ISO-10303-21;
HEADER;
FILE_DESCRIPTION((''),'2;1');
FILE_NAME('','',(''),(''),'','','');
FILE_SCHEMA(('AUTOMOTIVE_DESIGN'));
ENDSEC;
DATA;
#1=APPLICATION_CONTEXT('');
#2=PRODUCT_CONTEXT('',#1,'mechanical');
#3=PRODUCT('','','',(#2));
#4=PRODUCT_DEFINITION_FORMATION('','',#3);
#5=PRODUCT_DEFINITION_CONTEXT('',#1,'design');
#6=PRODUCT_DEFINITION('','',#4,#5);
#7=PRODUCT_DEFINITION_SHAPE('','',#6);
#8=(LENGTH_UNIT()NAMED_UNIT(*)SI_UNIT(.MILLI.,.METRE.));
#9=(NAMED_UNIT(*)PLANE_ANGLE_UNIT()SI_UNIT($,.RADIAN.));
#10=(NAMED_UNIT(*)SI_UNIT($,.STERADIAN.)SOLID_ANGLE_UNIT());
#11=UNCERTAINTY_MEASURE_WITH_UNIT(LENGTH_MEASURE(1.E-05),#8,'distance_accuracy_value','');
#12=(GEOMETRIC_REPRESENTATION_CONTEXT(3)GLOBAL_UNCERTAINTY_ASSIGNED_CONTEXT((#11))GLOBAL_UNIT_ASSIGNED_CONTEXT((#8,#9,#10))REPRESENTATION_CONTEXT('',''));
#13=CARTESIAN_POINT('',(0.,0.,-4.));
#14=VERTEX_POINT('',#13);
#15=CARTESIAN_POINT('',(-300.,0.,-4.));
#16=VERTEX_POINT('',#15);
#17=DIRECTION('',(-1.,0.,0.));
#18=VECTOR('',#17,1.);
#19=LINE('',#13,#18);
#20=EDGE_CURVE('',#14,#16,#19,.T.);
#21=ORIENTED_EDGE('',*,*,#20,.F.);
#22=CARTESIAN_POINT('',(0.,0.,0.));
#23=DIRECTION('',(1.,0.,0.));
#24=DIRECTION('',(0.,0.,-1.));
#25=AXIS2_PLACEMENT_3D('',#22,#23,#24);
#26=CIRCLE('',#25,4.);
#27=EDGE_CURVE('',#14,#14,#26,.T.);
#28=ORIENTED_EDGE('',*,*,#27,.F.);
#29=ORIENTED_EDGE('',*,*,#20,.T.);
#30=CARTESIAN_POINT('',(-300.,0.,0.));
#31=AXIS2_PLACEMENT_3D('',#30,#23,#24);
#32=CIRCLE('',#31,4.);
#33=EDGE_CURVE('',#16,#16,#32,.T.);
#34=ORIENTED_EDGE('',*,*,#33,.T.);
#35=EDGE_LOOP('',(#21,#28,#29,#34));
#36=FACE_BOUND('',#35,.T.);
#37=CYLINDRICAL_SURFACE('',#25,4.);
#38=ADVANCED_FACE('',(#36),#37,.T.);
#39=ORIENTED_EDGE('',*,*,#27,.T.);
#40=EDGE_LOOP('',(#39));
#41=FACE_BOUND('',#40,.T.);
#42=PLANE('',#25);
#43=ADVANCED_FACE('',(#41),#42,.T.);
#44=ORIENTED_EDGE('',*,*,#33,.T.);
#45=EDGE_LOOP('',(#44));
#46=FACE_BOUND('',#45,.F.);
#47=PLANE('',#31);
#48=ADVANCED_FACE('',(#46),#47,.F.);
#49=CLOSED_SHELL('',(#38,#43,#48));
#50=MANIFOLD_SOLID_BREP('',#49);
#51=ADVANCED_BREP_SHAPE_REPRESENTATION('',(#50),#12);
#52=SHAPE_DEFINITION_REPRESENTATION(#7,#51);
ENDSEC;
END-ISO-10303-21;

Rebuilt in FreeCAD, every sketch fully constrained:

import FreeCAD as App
import Part
import Sketcher

doc = App.newDocument("Part")
body = doc.addObject("PartDesign::Body", "Body")

sketch1 = doc.addObject("Sketcher::SketchObject", "Sketch")
body.addObject(sketch1)
sketch1.AttachmentSupport = (doc.YZ_Plane, [""])
sketch1.MapMode = "FlatFace"
sketch1.addGeometry(Part.Circle(App.Vector(0, 0, 0), App.Vector(0, 0, 1), 4), False)
sketch1.addConstraint([
    Sketcher.Constraint("Coincident", 0, 3, -1, 1),
    Sketcher.Constraint("Diameter", 0, 8.0),
])
pad1 = doc.addObject("PartDesign::Pad", "Pad")
body.addObject(pad1)
pad1.Profile = sketch1
pad1.Length = 300
pad1.Reversed = True

doc.recompute()
